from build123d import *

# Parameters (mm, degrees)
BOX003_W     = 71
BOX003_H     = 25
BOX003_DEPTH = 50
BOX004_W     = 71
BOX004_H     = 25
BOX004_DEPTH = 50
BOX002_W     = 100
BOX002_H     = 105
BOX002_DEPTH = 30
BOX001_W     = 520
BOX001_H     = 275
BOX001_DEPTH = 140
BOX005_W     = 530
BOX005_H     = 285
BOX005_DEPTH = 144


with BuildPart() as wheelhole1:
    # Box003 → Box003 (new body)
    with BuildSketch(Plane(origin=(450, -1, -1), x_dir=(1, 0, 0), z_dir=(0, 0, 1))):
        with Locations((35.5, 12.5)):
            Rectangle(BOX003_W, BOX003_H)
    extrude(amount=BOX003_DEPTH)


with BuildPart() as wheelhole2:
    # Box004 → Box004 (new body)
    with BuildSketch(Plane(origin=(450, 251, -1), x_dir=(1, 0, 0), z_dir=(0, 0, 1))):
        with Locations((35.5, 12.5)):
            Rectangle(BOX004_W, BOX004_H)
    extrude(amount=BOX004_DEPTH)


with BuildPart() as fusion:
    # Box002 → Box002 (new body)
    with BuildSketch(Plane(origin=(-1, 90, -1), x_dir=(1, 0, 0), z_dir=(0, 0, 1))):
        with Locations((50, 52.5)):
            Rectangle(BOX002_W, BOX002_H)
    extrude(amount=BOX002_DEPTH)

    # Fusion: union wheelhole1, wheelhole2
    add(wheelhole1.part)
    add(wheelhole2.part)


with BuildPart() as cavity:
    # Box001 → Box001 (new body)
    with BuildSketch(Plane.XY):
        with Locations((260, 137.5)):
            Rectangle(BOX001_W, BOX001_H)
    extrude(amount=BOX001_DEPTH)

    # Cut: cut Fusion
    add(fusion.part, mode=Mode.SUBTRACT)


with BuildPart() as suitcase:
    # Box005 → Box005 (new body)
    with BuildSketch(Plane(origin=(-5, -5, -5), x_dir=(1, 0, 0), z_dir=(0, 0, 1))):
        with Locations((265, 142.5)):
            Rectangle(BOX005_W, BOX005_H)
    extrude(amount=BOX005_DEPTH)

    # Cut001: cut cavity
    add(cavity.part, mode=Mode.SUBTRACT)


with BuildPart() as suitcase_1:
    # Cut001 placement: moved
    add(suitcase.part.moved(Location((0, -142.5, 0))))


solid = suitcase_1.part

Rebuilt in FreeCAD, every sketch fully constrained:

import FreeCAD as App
import Part
import Sketcher

V = App.Vector


def add_polygon(sketch, points):
    """Adds a closed chain of lines whose ends are joined by coincident constraints."""
    first, n = sketch.GeometryCount, len(points)
    for a, b in zip(points, points[1:] + points[:1]):
        sketch.addGeometry(Part.LineSegment(App.Vector(*a, 0), App.Vector(*b, 0)), False)
    for i in range(n):
        sketch.addConstraint(Sketcher.Constraint("Coincident", first + i, 2, first + (i + 1) % n, 1))

doc = App.newDocument("Part")
params = doc.addObject("Spreadsheet::Sheet", "Params")
for row, (alias, value) in enumerate([
    ("sketch1_width", "71 mm"),
    ("sketch1_height", "25 mm"),
    ("pad1_length", "50 mm"),
    ("sketch2_width", "71 mm"),
    ("sketch2_height", "25 mm"),
    ("pad2_length", "50 mm"),
    ("sketch3_width", "100 mm"),
    ("sketch3_height", "105 mm"),
    ("pad3_length", "30 mm"),
    ("sketch4_width", "520 mm"),
    ("sketch4_height", "275 mm"),
    ("pad4_length", "140 mm"),
    ("sketch5_width", "530 mm"),
    ("sketch5_height", "285 mm"),
    ("pad5_length", "144 mm"),
], start=1):
    params.set(f"A{row}", alias)
    params.set(f"B{row}", "=" + value)
    params.setAlias(f"B{row}", alias)

body = doc.addObject("PartDesign::Body", "Body")

sketch1 = doc.addObject("Sketcher::SketchObject", "Sketch")
body.addObject(sketch1)
sketch1.AttachmentSupport = (doc.XY_Plane, [""])
sketch1.MapMode = "FlatFace"
sketch1.AttachmentOffset = App.Placement(V(0, 0, -1), App.Rotation())
add_polygon(sketch1, [(450, 24), (450, -1), (521, -1), (521, 24)])
sketch1.addConstraint(Sketcher.Constraint("Vertical", 0))
sketch1.addConstraint(Sketcher.Constraint("Horizontal", 1))
sketch1.addConstraint(Sketcher.Constraint("Vertical", 2))
sketch1.addConstraint(Sketcher.Constraint("Horizontal", 3))
sketch1.addConstraint(Sketcher.Constraint("DistanceX", 1, 1, 1, 2, 71.0))
sketch1.addConstraint(Sketcher.Constraint("DistanceY", 0, 2, 0, 1, 25.0))
sketch1.addConstraint(Sketcher.Constraint("DistanceX", -1, 1, 0, 2, 450.0))
sketch1.addConstraint(Sketcher.Constraint("DistanceY", 0, 2, -1, 1, 1.0))
sketch1.setExpression("Constraints[8]", "Params.sketch1_width")
sketch1.setExpression("Constraints[9]", "Params.sketch1_height")
pad1 = doc.addObject("PartDesign::Pad", "Pad")
body.addObject(pad1)
pad1.Profile = sketch1
pad1.setExpression("Length", "Params.pad1_length")
body2 = doc.addObject("PartDesign::Body", "Body001")

sketch2 = doc.addObject("Sketcher::SketchObject", "Sketch001")
body2.addObject(sketch2)
sketch2.AttachmentSupport = (doc.getObject("XY_Plane001"), [""])
sketch2.MapMode = "FlatFace"
sketch2.AttachmentOffset = App.Placement(V(0, 0, -1), App.Rotation())
add_polygon(sketch2, [(450, 276), (450, 251), (521, 251), (521, 276)])
sketch2.addConstraint(Sketcher.Constraint("Vertical", 0))
sketch2.addConstraint(Sketcher.Constraint("Horizontal", 1))
sketch2.addConstraint(Sketcher.Constraint("Vertical", 2))
sketch2.addConstraint(Sketcher.Constraint("Horizontal", 3))
sketch2.addConstraint(Sketcher.Constraint("DistanceX", 1, 1, 1, 2, 71.0))
sketch2.addConstraint(Sketcher.Constraint("DistanceY", 0, 2, 0, 1, 25.0))
sketch2.addConstraint(Sketcher.Constraint("DistanceX", -1, 1, 0, 2, 450.0))
sketch2.addConstraint(Sketcher.Constraint("DistanceY", -1, 1, 0, 2, 251.0))
sketch2.setExpression("Constraints[8]", "Params.sketch2_width")
sketch2.setExpression("Constraints[9]", "Params.sketch2_height")
pad2 = doc.addObject("PartDesign::Pad", "Pad001")
body2.addObject(pad2)
pad2.Profile = sketch2
pad2.setExpression("Length", "Params.pad2_length")
body3 = doc.addObject("PartDesign::Body", "Body002")
body3.AllowCompound = True

sketch3 = doc.addObject("Sketcher::SketchObject", "Sketch002")
body3.addObject(sketch3)
sketch3.AttachmentSupport = (doc.getObject("XY_Plane002"), [""])
sketch3.MapMode = "FlatFace"
sketch3.AttachmentOffset = App.Placement(V(0, 0, -1), App.Rotation())
add_polygon(sketch3, [(-1, 195), (-1, 90), (99, 90), (99, 195)])
sketch3.addConstraint(Sketcher.Constraint("Vertical", 0))
sketch3.addConstraint(Sketcher.Constraint("Horizontal", 1))
sketch3.addConstraint(Sketcher.Constraint("Vertical", 2))
sketch3.addConstraint(Sketcher.Constraint("Horizontal", 3))
sketch3.addConstraint(Sketcher.Constraint("DistanceX", 1, 1, 1, 2, 100.0))
sketch3.addConstraint(Sketcher.Constraint("DistanceY", 0, 2, 0, 1, 105.0))
sketch3.addConstraint(Sketcher.Constraint("DistanceX", 0, 2, -1, 1, 1.0))
sketch3.addConstraint(Sketcher.Constraint("DistanceY", -1, 1, 0, 2, 90.0))
sketch3.setExpression("Constraints[8]", "Params.sketch3_width")
sketch3.setExpression("Constraints[9]", "Params.sketch3_height")
pad3 = doc.addObject("PartDesign::Pad", "Pad002")
body3.addObject(pad3)
pad3.Profile = sketch3
pad3.setExpression("Length", "Params.pad3_length")
doc.recompute()

boolean = doc.addObject("PartDesign::Boolean", "Boolean")
body3.addObject(boolean)
boolean.Type = "Fuse"
boolean.addObjects([body])
doc.recompute()

boolean2 = doc.addObject("PartDesign::Boolean", "Boolean001")
body3.addObject(boolean2)
boolean2.Type = "Fuse"
boolean2.addObjects([body2])
body4 = doc.addObject("PartDesign::Body", "Body003")

sketch4 = doc.addObject("Sketcher::SketchObject", "Sketch003")
body4.addObject(sketch4)
sketch4.AttachmentSupport = (doc.getObject("XY_Plane003"), [""])
sketch4.MapMode = "FlatFace"
add_polygon(sketch4, [(0, 275), (0, 0), (520, 0), (520, 275)])
sketch4.addConstraint(Sketcher.Constraint("Vertical", 0))
sketch4.addConstraint(Sketcher.Constraint("Horizontal", 1))
sketch4.addConstraint(Sketcher.Constraint("Vertical", 2))
sketch4.addConstraint(Sketcher.Constraint("Horizontal", 3))
sketch4.addConstraint(Sketcher.Constraint("Coincident", 0, 2, -1, 1))
sketch4.addConstraint(Sketcher.Constraint("DistanceX", 1, 1, 1, 2, 520.0))
sketch4.addConstraint(Sketcher.Constraint("DistanceY", 0, 2, 0, 1, 275.0))
sketch4.setExpression("Constraints[9]", "Params.sketch4_width")
sketch4.setExpression("Constraints[10]", "Params.sketch4_height")
pad4 = doc.addObject("PartDesign::Pad", "Pad003")
body4.addObject(pad4)
pad4.Profile = sketch4
pad4.setExpression("Length", "Params.pad4_length")
doc.recompute()

boolean3 = doc.addObject("PartDesign::Boolean", "Boolean002")
body4.addObject(boolean3)
boolean3.Type = "Cut"
boolean3.addObjects([body3])
body5 = doc.addObject("PartDesign::Body", "Body004")

sketch5 = doc.addObject("Sketcher::SketchObject", "Sketch004")
body5.addObject(sketch5)
sketch5.AttachmentSupport = (doc.getObject("XY_Plane004"), [""])
sketch5.MapMode = "FlatFace"
sketch5.AttachmentOffset = App.Placement(V(0, 0, -5), App.Rotation())
add_polygon(sketch5, [(-5, 280), (-5, -5), (525, -5), (525, 280)])
sketch5.addConstraint(Sketcher.Constraint("Vertical", 0))
sketch5.addConstraint(Sketcher.Constraint("Horizontal", 1))
sketch5.addConstraint(Sketcher.Constraint("Vertical", 2))
sketch5.addConstraint(Sketcher.Constraint("Horizontal", 3))
sketch5.addConstraint(Sketcher.Constraint("DistanceX", 1, 1, 1, 2, 530.0))
sketch5.addConstraint(Sketcher.Constraint("DistanceY", 0, 2, 0, 1, 285.0))
sketch5.addConstraint(Sketcher.Constraint("DistanceX", 0, 2, -1, 1, 5.0))
sketch5.addConstraint(Sketcher.Constraint("DistanceY", 0, 2, -1, 1, 5.0))
sketch5.setExpression("Constraints[8]", "Params.sketch5_width")
sketch5.setExpression("Constraints[9]", "Params.sketch5_height")
pad5 = doc.addObject("PartDesign::Pad", "Pad004")
body5.addObject(pad5)
pad5.Profile = sketch5
pad5.setExpression("Length", "Params.pad5_length")
doc.recompute()

boolean4 = doc.addObject("PartDesign::Boolean", "Boolean003")
body5.addObject(boolean4)
boolean4.Type = "Cut"
boolean4.addObjects([body4])
body6 = doc.addObject("PartDesign::Body", "Body005")
doc.recompute()

body5.Placement = App.Placement(V(0, -142.5, 0), App.Rotation(V(0, 0, 1), 0))
boolean5 = doc.addObject("PartDesign::Boolean", "Boolean004")
body6.addObject(boolean5)
boolean5.Type = "Fuse"
boolean5.addObjects([body5])

doc.recompute()
